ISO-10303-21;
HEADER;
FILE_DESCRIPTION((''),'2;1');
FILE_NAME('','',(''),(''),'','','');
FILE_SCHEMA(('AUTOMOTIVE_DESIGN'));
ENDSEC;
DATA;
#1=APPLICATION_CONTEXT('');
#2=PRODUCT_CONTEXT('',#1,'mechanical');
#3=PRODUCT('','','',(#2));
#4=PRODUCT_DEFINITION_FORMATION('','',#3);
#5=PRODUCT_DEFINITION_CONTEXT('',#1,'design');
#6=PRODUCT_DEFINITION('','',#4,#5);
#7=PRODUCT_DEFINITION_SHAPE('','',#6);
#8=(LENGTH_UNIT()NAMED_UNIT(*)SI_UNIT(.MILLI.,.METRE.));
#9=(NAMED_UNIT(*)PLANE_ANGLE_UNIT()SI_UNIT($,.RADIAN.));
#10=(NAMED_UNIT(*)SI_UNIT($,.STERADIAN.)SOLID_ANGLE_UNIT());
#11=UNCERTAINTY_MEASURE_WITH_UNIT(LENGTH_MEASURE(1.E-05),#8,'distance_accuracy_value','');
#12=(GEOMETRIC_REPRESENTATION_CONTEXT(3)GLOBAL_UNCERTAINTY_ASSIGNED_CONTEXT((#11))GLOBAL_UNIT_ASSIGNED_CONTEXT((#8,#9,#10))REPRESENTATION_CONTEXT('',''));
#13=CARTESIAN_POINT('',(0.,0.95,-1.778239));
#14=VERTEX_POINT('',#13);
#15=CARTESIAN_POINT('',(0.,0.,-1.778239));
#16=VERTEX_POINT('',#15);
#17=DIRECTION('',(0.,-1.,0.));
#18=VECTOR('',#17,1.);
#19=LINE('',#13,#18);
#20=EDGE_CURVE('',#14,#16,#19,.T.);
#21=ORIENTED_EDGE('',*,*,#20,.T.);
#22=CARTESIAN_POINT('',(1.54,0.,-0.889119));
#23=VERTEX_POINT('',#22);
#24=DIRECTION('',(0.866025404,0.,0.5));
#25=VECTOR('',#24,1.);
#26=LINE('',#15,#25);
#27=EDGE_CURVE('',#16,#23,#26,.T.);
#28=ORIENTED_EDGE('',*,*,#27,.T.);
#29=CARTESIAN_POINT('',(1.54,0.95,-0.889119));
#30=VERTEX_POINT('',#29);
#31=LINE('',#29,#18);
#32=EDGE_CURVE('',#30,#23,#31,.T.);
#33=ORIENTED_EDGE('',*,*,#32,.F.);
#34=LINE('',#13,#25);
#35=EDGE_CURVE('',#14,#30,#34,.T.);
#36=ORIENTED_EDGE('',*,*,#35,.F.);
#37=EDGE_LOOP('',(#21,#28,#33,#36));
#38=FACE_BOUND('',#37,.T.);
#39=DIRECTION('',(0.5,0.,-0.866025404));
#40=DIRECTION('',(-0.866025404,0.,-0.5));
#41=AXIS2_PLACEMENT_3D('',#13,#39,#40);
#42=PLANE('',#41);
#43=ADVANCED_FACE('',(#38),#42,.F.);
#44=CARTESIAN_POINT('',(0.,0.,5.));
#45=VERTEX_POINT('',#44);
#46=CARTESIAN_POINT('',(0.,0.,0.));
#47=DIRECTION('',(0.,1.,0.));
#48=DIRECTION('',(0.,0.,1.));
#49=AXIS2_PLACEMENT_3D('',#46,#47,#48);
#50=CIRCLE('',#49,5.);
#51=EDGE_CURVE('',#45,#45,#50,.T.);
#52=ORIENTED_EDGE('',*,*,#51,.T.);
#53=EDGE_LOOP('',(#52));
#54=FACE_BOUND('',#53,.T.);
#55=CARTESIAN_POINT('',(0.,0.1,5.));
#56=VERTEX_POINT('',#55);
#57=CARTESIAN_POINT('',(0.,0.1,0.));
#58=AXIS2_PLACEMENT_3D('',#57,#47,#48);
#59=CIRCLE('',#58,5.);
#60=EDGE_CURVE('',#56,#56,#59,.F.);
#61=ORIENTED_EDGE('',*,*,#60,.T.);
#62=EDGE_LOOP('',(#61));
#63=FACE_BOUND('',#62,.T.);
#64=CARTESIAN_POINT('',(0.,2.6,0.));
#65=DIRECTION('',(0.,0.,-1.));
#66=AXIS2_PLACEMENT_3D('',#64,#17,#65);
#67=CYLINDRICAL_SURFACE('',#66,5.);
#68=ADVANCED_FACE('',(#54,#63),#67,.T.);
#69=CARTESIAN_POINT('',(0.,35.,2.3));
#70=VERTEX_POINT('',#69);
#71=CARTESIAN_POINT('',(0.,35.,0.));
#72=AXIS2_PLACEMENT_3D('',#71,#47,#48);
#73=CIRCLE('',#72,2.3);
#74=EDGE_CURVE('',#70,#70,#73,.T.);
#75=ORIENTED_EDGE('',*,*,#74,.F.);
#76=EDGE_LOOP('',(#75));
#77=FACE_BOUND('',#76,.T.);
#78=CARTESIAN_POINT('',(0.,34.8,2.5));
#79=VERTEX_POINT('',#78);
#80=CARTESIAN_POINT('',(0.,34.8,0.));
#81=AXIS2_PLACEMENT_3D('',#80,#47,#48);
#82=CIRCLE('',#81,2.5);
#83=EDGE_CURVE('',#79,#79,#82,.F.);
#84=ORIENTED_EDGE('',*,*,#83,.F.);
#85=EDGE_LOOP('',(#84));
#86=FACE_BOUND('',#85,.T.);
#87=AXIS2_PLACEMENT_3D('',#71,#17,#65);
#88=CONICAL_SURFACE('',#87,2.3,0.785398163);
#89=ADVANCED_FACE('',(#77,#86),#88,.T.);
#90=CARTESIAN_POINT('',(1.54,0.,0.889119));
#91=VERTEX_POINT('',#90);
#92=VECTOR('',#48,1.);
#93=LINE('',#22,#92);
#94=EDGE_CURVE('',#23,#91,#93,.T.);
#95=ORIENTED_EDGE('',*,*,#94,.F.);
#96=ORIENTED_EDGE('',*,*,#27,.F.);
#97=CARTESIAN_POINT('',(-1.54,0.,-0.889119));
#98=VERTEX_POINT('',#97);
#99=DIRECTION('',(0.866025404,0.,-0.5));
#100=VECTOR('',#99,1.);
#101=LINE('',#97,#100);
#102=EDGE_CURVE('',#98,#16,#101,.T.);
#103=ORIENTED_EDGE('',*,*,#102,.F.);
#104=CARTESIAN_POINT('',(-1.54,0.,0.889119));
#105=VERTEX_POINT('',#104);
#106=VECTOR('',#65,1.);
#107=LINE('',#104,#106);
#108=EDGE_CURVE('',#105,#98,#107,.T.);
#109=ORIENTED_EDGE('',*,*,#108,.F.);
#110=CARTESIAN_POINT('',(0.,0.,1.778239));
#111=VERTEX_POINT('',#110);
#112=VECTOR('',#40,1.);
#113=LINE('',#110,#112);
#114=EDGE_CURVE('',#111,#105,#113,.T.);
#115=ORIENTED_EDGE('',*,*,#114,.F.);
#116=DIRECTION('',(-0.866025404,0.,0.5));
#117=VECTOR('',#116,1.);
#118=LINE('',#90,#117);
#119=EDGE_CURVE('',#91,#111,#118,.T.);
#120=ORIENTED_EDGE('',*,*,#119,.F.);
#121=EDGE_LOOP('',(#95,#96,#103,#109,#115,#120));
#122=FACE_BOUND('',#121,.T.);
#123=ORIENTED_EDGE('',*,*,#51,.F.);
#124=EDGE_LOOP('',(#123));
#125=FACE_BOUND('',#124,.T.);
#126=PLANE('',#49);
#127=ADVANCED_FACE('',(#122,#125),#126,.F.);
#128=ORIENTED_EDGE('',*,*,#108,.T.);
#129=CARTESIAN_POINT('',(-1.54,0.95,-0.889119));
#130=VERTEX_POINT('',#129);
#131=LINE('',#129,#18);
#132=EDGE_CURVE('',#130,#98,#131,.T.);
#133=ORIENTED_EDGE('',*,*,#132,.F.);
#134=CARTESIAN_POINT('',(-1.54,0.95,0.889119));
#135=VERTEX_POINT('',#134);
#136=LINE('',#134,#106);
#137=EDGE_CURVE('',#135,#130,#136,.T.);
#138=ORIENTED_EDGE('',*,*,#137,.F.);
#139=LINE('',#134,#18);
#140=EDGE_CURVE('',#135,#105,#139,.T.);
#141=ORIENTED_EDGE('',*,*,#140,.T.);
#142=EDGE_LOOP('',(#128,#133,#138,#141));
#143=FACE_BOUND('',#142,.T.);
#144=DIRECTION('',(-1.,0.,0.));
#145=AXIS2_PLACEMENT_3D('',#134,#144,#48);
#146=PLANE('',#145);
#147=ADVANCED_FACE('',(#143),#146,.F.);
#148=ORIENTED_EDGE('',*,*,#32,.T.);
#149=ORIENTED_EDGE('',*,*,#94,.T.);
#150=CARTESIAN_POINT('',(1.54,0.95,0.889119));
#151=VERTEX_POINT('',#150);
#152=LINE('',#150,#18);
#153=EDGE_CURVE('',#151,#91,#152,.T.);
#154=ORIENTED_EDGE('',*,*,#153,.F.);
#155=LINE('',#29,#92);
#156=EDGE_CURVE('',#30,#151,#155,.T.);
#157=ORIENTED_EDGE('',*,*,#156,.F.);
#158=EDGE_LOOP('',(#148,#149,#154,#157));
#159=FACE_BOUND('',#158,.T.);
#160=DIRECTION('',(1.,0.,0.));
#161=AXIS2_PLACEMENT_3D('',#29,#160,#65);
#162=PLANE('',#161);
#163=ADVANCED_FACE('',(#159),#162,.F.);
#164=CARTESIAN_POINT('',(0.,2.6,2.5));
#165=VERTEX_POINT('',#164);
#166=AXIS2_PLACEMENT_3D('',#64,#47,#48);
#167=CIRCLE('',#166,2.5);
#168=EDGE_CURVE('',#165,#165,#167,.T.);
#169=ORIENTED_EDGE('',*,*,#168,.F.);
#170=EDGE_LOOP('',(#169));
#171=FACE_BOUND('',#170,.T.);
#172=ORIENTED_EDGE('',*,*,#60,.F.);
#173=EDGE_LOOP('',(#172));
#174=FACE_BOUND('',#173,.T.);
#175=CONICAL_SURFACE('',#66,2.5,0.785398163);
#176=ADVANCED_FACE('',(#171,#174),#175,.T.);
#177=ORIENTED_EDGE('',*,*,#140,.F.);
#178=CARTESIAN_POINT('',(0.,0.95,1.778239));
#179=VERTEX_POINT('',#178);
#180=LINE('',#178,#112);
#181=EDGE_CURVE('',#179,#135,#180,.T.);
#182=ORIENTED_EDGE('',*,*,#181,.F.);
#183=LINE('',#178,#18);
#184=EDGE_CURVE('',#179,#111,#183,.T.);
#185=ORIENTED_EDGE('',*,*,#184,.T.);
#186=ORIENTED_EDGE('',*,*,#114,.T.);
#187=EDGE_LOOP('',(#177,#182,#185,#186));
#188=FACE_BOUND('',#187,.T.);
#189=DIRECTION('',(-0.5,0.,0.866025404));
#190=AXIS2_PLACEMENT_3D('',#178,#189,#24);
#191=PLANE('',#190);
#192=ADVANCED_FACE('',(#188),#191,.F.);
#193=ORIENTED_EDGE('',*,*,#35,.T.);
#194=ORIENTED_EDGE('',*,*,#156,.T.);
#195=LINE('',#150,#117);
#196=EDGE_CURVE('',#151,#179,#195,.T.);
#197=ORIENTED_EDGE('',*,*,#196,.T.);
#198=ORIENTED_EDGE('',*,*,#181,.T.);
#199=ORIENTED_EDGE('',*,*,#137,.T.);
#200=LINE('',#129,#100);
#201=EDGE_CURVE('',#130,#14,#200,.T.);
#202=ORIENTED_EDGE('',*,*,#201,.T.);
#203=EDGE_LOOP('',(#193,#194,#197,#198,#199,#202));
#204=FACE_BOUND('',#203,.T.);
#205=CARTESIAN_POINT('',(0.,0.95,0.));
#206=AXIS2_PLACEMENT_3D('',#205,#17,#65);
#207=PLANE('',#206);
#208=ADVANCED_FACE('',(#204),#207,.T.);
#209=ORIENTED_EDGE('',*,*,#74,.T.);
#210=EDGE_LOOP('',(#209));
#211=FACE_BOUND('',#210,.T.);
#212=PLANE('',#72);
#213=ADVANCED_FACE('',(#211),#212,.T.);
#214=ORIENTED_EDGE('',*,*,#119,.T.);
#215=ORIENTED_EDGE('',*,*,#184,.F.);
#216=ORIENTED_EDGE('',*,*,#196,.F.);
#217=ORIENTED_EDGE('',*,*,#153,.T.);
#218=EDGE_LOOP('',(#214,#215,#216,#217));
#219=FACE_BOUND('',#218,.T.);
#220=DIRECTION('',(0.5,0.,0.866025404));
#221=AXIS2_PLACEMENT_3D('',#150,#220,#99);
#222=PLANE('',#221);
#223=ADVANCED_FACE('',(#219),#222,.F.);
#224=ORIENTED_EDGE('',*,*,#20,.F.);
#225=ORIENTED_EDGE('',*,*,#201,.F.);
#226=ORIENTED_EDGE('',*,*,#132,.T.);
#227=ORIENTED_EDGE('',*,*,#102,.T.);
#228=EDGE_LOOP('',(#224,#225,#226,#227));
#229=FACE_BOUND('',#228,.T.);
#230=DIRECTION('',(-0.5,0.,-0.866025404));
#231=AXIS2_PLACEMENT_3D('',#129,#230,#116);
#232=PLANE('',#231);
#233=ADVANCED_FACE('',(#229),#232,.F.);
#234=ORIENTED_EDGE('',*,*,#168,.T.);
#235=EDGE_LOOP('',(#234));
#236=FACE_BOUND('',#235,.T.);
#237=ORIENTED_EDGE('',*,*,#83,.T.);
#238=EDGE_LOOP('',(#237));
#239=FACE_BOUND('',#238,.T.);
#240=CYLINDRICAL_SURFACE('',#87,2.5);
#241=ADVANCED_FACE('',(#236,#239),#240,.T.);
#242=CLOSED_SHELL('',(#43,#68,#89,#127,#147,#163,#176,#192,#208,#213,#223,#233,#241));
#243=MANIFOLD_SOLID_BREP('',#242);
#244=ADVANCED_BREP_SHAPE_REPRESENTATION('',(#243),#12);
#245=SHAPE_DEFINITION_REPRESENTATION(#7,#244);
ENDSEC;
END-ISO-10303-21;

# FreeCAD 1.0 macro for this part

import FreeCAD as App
import Part
import Sketcher

V = App.Vector
Q = App.Units.Quantity


def edges_at(feature, points):
    """Names of the edges that pass closest to the given points."""
    edges = feature.Shape.Edges
    near = lambda p: min(range(len(edges)), key=lambda i: edges[i].distToShape(Part.Vertex(*p))[0])
    return sorted({f"Edge{near(p) + 1}" for p in points})


def add_polygon(sketch, points):
    """Adds a closed chain of lines whose ends are joined by coincident constraints."""
    first, n = sketch.GeometryCount, len(points)
    for a, b in zip(points, points[1:] + points[:1]):
        sketch.addGeometry(Part.LineSegment(App.Vector(*a, 0), App.Vector(*b, 0)), False)
    for i in range(n):
        sketch.addConstraint(Sketcher.Constraint("Coincident", first + i, 2, first + (i + 1) % n, 1))

doc = App.newDocument("Part")
body = doc.addObject("PartDesign::Body", "Body")

# Sketch on XZ plane
sketch1 = body.newObject("Sketcher::SketchObject", "Sketch")
sketch1.AttachmentSupport = (doc.getObject("XZ_Plane"), [""])
sketch1.MapMode = "FlatFace"
sketch1.addGeometry(Part.Circle(V(0, 0, 0), V(0, 0, 1), 5), False)
sketch1.addConstraint([
    Sketcher.Constraint("Coincident", 0, 3, -1, 1),
    Sketcher.Constraint("Diameter", 0, Q("10 mm")),
])
pad1 = body.newObject("PartDesign::Pad", "Pad")
pad1.Profile = sketch1
pad1.Length = 2.6
pad1.Reversed = True
doc.recompute()

chamfer = body.newObject("PartDesign::Chamfer", "Chamfer")
chamfer.Base = (pad1, edges_at(pad1, [(0, 2.6, -5)]))
chamfer.Size = 2.5

# Sketch on XZ plane
sketch2 = body.newObject("Sketcher::SketchObject", "Sketch001")
sketch2.AttachmentSupport = (doc.getObject("XZ_Plane"), [""])
sketch2.MapMode = "FlatFace"
add_polygon(sketch2, [(1.5, -0.9), (1.5, 0.9), (0, 1.8), (-1.5, 0.9), (-1.5, -0.9), (0, -1.8)])  # lines 0-5
sketch2.addConstraint([
    Sketcher.Constraint("Vertical", 0),
    Sketcher.Constraint("Vertical", 3),
    Sketcher.Constraint("Symmetric", 0, 2, 3, 2, -1, 1),
    Sketcher.Constraint("Symmetric", 1, 2, 4, 2, -1, 1),
    Sketcher.Constraint("PointOnObject", 1, 2, -2),
    Sketcher.Constraint("Parallel", 2, 5),
    Sketcher.Constraint("Horizontal", 0, 2, 2, 2),
    Sketcher.Constraint("Angle", 1, Q("150 deg")),
    Sketcher.Constraint("DistanceX", -1, 1, 0, 2, Q("1.54 mm")),
    Sketcher.Constraint("DistanceY", 0, 1, 0, 2, Q("1.778239 mm")),
])
pocket1 = body.newObject("PartDesign::Pocket", "Pocket")
pocket1.Profile = sketch2
pocket1.Length = 0.95

# Sketch on XZ plane
sketch3 = body.newObject("Sketcher::SketchObject", "Sketch002")
sketch3.AttachmentSupport = (doc.getObject("XZ_Plane"), [""])
sketch3.MapMode = "FlatFace"
sketch3.AttachmentOffset = App.Placement(V(0, 0, -2.6), App.Rotation())
sketch3.addGeometry(Part.Circle(V(0, 0, 0), V(0, 0, 1), 2.5), False)
sketch3.addConstraint([
    Sketcher.Constraint("Coincident", 0, 3, -1, 1),
    Sketcher.Constraint("Diameter", 0, Q("5 mm")),
])
pad2 = body.newObject("PartDesign::Pad", "Pad001")
pad2.Profile = sketch3
pad2.Length = 32.4
pad2.Reversed = True
doc.recompute()

chamfer2 = body.newObject("PartDesign::Chamfer", "Chamfer001")
chamfer2.Base = (pad2, edges_at(pad2, [(0, 35, -2.5)]))
chamfer2.Size = 0.2

doc.recompute()
